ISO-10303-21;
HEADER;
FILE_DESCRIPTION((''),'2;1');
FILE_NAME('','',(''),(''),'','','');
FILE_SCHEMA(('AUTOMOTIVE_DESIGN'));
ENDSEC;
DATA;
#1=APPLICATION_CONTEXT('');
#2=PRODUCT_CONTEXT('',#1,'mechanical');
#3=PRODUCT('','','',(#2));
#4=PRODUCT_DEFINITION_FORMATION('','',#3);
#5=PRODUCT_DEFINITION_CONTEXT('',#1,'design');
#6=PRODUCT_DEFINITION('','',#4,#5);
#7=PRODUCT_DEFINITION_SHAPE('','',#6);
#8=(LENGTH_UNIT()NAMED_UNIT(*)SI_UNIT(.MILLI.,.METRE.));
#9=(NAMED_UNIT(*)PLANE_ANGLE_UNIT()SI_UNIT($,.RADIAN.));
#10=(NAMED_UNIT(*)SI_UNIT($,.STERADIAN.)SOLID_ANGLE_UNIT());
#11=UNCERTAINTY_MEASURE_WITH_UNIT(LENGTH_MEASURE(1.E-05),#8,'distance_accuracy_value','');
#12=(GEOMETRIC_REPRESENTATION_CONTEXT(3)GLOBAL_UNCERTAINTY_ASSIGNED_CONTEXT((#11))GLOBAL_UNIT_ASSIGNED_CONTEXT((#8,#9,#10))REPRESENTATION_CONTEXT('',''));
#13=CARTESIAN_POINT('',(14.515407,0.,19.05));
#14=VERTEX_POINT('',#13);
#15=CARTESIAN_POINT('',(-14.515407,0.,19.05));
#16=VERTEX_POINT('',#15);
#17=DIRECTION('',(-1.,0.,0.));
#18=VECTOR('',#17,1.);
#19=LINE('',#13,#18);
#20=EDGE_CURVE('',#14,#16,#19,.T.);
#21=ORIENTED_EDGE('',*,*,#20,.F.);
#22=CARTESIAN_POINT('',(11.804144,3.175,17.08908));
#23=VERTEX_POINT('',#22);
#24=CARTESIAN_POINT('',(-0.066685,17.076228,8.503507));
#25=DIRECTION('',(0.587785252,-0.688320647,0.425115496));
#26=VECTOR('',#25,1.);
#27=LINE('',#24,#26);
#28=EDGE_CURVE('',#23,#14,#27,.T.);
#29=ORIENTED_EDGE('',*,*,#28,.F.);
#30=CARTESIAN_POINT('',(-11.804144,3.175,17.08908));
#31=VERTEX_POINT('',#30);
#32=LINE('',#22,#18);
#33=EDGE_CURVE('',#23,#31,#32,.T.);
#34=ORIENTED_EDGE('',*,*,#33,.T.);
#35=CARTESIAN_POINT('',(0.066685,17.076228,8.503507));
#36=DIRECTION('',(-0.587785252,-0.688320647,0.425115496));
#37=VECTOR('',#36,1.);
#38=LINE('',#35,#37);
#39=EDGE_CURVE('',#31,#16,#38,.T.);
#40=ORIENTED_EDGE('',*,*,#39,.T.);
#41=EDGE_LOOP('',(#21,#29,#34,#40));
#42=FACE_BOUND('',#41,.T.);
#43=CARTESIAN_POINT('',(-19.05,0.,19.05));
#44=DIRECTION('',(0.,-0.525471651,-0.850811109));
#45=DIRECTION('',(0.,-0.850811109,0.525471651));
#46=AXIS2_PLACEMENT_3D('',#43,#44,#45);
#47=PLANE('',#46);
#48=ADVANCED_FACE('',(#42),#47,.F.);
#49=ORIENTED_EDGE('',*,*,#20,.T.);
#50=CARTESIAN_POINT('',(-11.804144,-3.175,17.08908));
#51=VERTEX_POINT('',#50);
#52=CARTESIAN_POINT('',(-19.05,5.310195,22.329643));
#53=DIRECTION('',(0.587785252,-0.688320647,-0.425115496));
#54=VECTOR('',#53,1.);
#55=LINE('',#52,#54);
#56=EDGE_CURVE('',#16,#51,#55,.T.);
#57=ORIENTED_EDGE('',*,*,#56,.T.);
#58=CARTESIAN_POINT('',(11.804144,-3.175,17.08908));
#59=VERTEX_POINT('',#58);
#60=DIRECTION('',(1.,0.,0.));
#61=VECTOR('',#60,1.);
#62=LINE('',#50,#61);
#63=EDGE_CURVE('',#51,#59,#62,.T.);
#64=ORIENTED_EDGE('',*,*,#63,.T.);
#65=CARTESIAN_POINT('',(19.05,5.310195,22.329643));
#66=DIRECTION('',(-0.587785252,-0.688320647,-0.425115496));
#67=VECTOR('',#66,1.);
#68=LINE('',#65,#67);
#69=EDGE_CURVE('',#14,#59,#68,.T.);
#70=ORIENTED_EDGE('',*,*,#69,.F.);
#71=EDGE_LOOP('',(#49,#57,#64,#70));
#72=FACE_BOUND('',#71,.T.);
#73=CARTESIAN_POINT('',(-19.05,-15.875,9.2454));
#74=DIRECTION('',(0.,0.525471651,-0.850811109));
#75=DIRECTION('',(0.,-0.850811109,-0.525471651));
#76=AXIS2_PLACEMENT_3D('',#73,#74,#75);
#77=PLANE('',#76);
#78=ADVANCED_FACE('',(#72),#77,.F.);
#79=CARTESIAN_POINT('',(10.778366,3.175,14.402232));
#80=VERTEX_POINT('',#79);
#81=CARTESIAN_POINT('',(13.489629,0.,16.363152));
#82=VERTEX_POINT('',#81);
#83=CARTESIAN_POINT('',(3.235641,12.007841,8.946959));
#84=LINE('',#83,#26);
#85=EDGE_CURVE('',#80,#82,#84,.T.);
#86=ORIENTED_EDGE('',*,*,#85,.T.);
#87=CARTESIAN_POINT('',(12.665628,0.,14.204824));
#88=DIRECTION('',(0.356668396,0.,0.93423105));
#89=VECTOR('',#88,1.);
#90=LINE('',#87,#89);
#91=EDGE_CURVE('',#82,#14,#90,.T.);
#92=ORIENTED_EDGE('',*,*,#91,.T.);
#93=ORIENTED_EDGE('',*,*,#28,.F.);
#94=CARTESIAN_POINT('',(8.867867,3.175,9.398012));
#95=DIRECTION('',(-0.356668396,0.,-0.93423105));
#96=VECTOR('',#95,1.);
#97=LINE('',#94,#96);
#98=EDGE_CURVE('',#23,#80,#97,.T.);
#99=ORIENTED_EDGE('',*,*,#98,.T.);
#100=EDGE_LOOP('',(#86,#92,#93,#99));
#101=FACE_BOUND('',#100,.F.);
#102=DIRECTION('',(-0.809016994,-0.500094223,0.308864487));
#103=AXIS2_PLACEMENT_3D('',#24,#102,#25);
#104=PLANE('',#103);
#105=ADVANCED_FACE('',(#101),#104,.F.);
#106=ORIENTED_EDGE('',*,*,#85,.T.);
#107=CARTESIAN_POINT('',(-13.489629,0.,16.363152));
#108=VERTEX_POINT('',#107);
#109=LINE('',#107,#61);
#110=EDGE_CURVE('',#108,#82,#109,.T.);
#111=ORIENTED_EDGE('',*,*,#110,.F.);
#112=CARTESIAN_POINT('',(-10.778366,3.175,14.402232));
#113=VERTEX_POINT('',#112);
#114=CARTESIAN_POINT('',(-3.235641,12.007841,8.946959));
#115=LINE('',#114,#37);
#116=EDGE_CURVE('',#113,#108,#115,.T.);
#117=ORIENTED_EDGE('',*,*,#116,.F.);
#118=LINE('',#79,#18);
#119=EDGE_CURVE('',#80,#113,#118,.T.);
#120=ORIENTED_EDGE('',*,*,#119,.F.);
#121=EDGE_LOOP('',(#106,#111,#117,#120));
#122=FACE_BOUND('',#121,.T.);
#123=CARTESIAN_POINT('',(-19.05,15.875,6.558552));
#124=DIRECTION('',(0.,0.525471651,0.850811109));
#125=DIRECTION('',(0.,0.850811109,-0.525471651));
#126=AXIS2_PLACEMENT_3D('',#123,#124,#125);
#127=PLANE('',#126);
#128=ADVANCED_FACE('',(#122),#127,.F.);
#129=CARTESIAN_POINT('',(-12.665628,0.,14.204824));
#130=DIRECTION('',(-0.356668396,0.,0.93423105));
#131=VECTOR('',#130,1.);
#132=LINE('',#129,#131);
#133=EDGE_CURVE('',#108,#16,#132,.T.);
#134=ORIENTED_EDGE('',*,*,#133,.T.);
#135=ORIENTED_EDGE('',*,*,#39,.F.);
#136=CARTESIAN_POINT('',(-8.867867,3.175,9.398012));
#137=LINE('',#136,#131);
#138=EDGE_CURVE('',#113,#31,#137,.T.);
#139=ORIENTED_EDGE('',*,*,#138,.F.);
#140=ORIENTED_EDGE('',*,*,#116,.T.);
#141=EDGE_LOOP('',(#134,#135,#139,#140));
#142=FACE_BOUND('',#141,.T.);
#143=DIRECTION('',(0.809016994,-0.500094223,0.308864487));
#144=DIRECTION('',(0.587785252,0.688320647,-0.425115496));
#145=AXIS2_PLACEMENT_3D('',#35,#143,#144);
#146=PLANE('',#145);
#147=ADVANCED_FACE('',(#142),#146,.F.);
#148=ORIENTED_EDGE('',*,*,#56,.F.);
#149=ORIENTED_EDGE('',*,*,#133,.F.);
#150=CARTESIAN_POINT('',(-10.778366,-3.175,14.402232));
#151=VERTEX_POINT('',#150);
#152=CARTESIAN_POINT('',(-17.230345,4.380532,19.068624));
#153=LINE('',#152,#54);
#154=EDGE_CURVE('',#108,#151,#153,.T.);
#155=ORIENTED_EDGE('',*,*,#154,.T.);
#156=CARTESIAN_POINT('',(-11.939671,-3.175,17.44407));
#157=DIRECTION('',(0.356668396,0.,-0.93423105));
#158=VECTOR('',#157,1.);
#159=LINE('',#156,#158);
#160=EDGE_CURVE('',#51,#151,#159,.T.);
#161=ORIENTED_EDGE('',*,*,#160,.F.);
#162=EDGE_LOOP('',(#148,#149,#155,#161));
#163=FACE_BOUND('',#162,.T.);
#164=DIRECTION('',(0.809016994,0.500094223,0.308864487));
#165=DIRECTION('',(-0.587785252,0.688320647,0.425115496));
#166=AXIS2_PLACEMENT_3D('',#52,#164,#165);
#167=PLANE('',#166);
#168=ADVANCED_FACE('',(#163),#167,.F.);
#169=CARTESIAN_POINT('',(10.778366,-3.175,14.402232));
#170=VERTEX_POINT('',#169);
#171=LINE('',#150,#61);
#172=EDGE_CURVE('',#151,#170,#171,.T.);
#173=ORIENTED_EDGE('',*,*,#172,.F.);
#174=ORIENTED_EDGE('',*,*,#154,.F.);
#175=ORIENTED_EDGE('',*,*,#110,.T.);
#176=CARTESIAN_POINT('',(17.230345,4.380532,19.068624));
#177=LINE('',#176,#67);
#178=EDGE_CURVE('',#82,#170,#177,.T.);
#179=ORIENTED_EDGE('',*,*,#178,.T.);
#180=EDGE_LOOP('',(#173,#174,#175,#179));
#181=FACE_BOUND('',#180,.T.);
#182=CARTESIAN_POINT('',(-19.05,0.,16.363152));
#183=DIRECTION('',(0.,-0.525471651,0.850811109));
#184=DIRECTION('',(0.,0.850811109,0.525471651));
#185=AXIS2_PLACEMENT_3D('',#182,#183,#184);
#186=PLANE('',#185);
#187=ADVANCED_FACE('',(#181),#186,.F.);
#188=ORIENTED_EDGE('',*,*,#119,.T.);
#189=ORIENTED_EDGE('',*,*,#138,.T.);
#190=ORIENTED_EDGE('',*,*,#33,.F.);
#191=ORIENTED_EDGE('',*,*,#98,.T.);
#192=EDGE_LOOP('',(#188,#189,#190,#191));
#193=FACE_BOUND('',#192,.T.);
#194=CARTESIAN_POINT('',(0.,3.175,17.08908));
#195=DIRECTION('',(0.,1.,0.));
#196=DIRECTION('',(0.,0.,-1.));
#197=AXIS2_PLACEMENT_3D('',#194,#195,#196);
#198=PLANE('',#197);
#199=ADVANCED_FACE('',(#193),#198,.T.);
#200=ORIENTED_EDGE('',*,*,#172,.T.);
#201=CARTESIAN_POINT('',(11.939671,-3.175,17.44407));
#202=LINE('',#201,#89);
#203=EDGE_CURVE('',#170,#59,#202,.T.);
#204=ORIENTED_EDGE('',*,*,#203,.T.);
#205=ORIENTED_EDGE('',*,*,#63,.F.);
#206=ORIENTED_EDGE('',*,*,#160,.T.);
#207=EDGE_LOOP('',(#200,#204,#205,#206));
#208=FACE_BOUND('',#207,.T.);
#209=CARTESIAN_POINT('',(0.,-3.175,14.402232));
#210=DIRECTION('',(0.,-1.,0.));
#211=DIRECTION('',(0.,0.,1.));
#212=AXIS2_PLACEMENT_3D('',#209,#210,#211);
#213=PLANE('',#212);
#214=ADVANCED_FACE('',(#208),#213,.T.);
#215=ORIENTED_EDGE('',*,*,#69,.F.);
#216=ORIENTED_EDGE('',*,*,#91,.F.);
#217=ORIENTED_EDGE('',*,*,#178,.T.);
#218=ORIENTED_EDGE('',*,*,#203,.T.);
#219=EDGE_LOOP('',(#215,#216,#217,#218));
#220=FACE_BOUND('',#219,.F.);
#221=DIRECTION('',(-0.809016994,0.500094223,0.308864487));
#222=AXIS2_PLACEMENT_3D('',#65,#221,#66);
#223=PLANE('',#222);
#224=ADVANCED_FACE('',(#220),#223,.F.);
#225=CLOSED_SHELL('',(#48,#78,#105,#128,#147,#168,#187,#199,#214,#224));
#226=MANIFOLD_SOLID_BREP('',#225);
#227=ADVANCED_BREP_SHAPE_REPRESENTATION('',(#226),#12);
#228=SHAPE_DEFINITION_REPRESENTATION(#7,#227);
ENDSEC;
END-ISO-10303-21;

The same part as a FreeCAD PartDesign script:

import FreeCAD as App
import Part
import Sketcher

V = App.Vector
Q = App.Units.Quantity

doc = App.newDocument("Part")
body = doc.addObject("PartDesign::Body", "Body")

sketch1 = body.newObject("Sketcher::SketchObject", "Sketch")
sketch1.AttachmentSupport = (doc.getObject("YZ_Plane"), [""])
sketch1.MapMode = "FlatFace"
sketch1.addGeometry(Part.LineSegment(V(-16, 19, 0), V(-16, -19, 0)), False)
sketch1.addGeometry(Part.LineSegment(V(-16, -19, 0), V(16, -19, 0)), False)
sketch1.addGeometry(Part.LineSegment(V(16, -19, 0), V(16, 19, 0)), False)
sketch1.addGeometry(Part.LineSegment(V(16, 19, 0), V(-16, 19, 0)), False)
sketch1.addConstraint(Sketcher.Constraint("Coincident", 0, 2, 1, 1))
sketch1.addConstraint(Sketcher.Constraint("Coincident", 1, 2, 2, 1))
sketch1.addConstraint(Sketcher.Constraint("Coincident", 2, 2, 3, 1))
sketch1.addConstraint(Sketcher.Constraint("Coincident", 3, 2, 0, 1))
sketch1.addConstraint(Sketcher.Constraint("Vertical", 0))
sketch1.addConstraint(Sketcher.Constraint("Horizontal", 1))
sketch1.addConstraint(Sketcher.Constraint("Vertical", 2))
sketch1.addConstraint(Sketcher.Constraint("Horizontal", 3))
sketch1.addConstraint(Sketcher.Constraint("Symmetric", 0, 2, 2, 2, -1, 1))
sketch1.addConstraint(Sketcher.Constraint("DistanceY", 0, 2, 0, 1, Q("1.5 in")))
sketch1.addConstraint(Sketcher.Constraint("DistanceX", 1, 1, 1, 2, Q("1.25 in")))
pad1 = body.newObject("PartDesign::Pad", "Pad")
pad1.Profile = sketch1
pad1.Length = Q("0.75 in")

sketch2 = body.newObject("Sketcher::SketchObject", "Sketch001")
sketch2.AttachmentSupport = (doc.getObject("YZ_Plane"), [""])
sketch2.MapMode = "FlatFace"
sketch2.AttachmentOffset = App.Placement(V(0, 0, 0.75 * 25.4), App.Rotation())
sketch2.addGeometry(Part.LineSegment(V(16, 19, 0), V(0, 19, 0)), False)
sketch2.addGeometry(Part.LineSegment(V(0, 19, 0), V(16, 9, 0)), False)
sketch2.addGeometry(Part.LineSegment(V(16, 9, 0), V(16, 19, 0)), False)
sketch2.addGeometry(Part.LineSegment(V(-16, 9, 0), V(0, 19, 0)), False)
sketch2.addGeometry(Part.LineSegment(V(0, 19, 0), V(-16, 19, 0)), False)
sketch2.addGeometry(Part.LineSegment(V(-16, 19, 0), V(-16, 9, 0)), False)
sketch2.addGeometry(Part.LineSegment(V(-16, -19, 0), V(16, -19, 0)), False)
sketch2.addGeometry(Part.LineSegment(V(16, -19, 0), V(16, 7, 0)), False)
sketch2.addGeometry(Part.LineSegment(V(16, 7, 0), V(0, 16, 0)), False)
sketch2.addGeometry(Part.LineSegment(V(0, 16, 0), V(-16, 7, 0)), False)
sketch2.addGeometry(Part.LineSegment(V(-16, 7, 0), V(-16, -19, 0)), False)
sketch2.addConstraint(Sketcher.Constraint("Coincident", 0, 2, 1, 1))
sketch2.addConstraint(Sketcher.Constraint("Coincident", 1, 2, 2, 1))
sketch2.addConstraint(Sketcher.Constraint("Coincident", 2, 2, 0, 1))
sketch2.addConstraint(Sketcher.Constraint("Coincident", 3, 2, 4, 1))
sketch2.addConstraint(Sketcher.Constraint("Coincident", 4, 2, 5, 1))
sketch2.addConstraint(Sketcher.Constraint("Coincident", 5, 2, 3, 1))
sketch2.addConstraint(Sketcher.Constraint("Coincident", 6, 2, 7, 1))
sketch2.addConstraint(Sketcher.Constraint("Coincident", 7, 2, 8, 1))
sketch2.addConstraint(Sketcher.Constraint("Coincident", 8, 2, 9, 1))
sketch2.addConstraint(Sketcher.Constraint("Coincident", 9, 2, 10, 1))
sketch2.addConstraint(Sketcher.Constraint("Coincident", 10, 2, 6, 1))
sketch2.addConstraint(Sketcher.Constraint("Horizontal", 0))
sketch2.addConstraint(Sketcher.Constraint("Vertical", 2))
sketch2.addConstraint(Sketcher.Constraint("Horizontal", 4))
sketch2.addConstraint(Sketcher.Constraint("Vertical", 5))
sketch2.addConstraint(Sketcher.Constraint("Horizontal", 6))
sketch2.addConstraint(Sketcher.Constraint("Vertical", 7))
sketch2.addConstraint(Sketcher.Constraint("Vertical", 10))
sketch2.addConstraint(Sketcher.Constraint("Coincident", 3, 2, 0, 2))
sketch2.addConstraint(Sketcher.Constraint("Symmetric", 4, 2, 6, 2, -1, 1))
sketch2.addConstraint(Sketcher.Constraint("Symmetric", 1, 2, 5, 2, -2))
sketch2.addConstraint(Sketcher.Constraint("Symmetric", 7, 2, 9, 2, -2))
sketch2.addConstraint(Sketcher.Constraint("PointOnObject", 0, 2, -2))
sketch2.addConstraint(Sketcher.Constraint("PointOnObject", 8, 2, -2))
sketch2.addConstraint(Sketcher.Constraint("Parallel", 1, 8))
sketch2.addConstraint(Sketcher.Constraint("DistanceX", 6, 1, 6, 2, Q("1.25 in")))
sketch2.addConstraint(Sketcher.Constraint("Angle", 1, Q("-31.7 deg")))
sketch2.addConstraint(Sketcher.Constraint("DistanceY", 6, 2, 2, 2, Q("1.5 in")))
sketch2.addConstraint(Sketcher.Constraint("DistanceY", 7, 1, 7, 2, Q("25.608552 mm")))
pocket1 = body.newObject("PartDesign::Pocket", "Pocket")
pocket1.Profile = sketch2
pocket1.Type = "ThroughAll"

sketch3 = body.newObject("Sketcher::SketchObject", "Sketch002")
sketch3.Placement = App.Placement(V(0, -8.516819, 13.789905), App.Rotation(V(1, 0, 0), V(0, 0.850811109, 0.525471651), V(0, -0.525471651, 0.850811109), "ZXY"))
sketch3.addGeometry(Part.LineSegment(V(19, -10, 0), V(19, 16, 0)), False)
sketch3.addGeometry(Part.LineSegment(V(19, 16, 0), V(0, -10, 0)), False)
sketch3.addGeometry(Part.LineSegment(V(0, -10, 0), V(19, -10, 0)), False)
sketch3.addConstraint(Sketcher.Constraint("Coincident", 0, 2, 1, 1))
sketch3.addConstraint(Sketcher.Constraint("Coincident", 1, 2, 2, 1))
sketch3.addConstraint(Sketcher.Constraint("Coincident", 2, 2, 0, 1))
sketch3.addConstraint(Sketcher.Constraint("Vertical", 0))
sketch3.addConstraint(Sketcher.Constraint("Horizontal", 2))
sketch3.addConstraint(Sketcher.Constraint("Angle", 1, Q("-126 deg")))
sketch3.addConstraint(Sketcher.Constraint("DistanceX", -1, 1, 0, 2, Q("0.75 in")))
sketch3.addConstraint(Sketcher.Constraint("DistanceY", 0, 1, 0, 2, Q("1.0359 in")))
sketch3.addConstraint(Sketcher.Constraint("DistanceY", -1, 1, 0, 2, Q("16.251567 mm")))
pocket2 = body.newObject("PartDesign::Pocket", "Pocket001")
pocket2.Profile = sketch3
pocket2.Type = "ThroughAll"

sketch4 = body.newObject("Sketcher::SketchObject", "Sketch003")
sketch4.Placement = App.Placement(V(0, 8.516819, 13.789905), App.Rotation(V(1, 0, 0), V(0, 0.850811109, -0.525471651), V(0, 0.525471651, 0.850811109), "ZXY"))
sketch4.addGeometry(Part.LineSegment(V(125, -10, 0), V(125, 10, 0)), False)
sketch4.addGeometry(Part.LineSegment(V(125, 10, 0), V(111, 10, 0)), False)
sketch4.addGeometry(Part.LineSegment(V(111, 10, 0), V(125, -10, 0)), False)
sketch4.addConstraint(Sketcher.Constraint("Coincident", 0, 2, 1, 1))
sketch4.addConstraint(Sketcher.Constraint("Coincident", 1, 2, 2, 1))
sketch4.addConstraint(Sketcher.Constraint("Coincident", 2, 2, 0, 1))
sketch4.addConstraint(Sketcher.Constraint("Vertical", 0))
sketch4.addConstraint(Sketcher.Constraint("Horizontal", 1))
sketch4.addConstraint(Sketcher.Constraint("Angle", 2, Q("-54 deg")))
sketch4.addConstraint(Sketcher.Constraint("DistanceX", 1, 2, 1, 1, Q("14.582092 mm")))
sketch4.addConstraint(Sketcher.Constraint("DistanceX", -1, 1, 0, 2, Q("125.314515 mm")))
sketch4.addConstraint(Sketcher.Constraint("DistanceY", -1, 1, 0, 2, Q("10.060293 mm")))
pocket3 = body.newObject("PartDesign::Pocket", "Pocket002")
pocket3.Profile = sketch4
pocket3.Type = "ThroughAll"

sketch5 = body.newObject("Sketcher::SketchObject", "Sketch004")
sketch5.Placement = App.Placement(V(0, 8.516819, 13.789905), App.Rotation(V(1, 0, 0), V(0, 0.850811109, -0.525471651), V(0, 0.525471651, 0.850811109), "ZXY"))
sketch5.addGeometry(Part.LineSegment(V(0, 10, 0), V(19, -16, 0)), False)
sketch5.addGeometry(Part.LineSegment(V(19, -16, 0), V(19, 10, 0)), False)
sketch5.addGeometry(Part.LineSegment(V(19, 10, 0), V(0, 10, 0)), False)
sketch5.addConstraint(Sketcher.Constraint("Coincident", 0, 2, 1, 1))
sketch5.addConstraint(Sketcher.Constraint("Coincident", 1, 2, 2, 1))
sketch5.addConstraint(Sketcher.Constraint("Coincident", 2, 2, 0, 1))
sketch5.addConstraint(Sketcher.Constraint("Vertical", 1))
sketch5.addConstraint(Sketcher.Constraint("Horizontal", 2))
sketch5.addConstraint(Sketcher.Constraint("Angle", 0, Q("-54 deg")))
sketch5.addConstraint(Sketcher.Constraint("DistanceX", -1, 1, 0, 2, Q("0.75 in")))
sketch5.addConstraint(Sketcher.Constraint("DistanceY", 1, 1, 1, 2, Q("1.0359 in")))
sketch5.addConstraint(Sketcher.Constraint("DistanceY", 0, 2, -1, 1, Q("16.251567 mm")))
pocket4 = body.newObject("PartDesign::Pocket", "Pocket003")
pocket4.Profile = sketch5
pocket4.Length = Q("1 in")
body2 = doc.addObject("PartDesign::Body", "Body001")
doc.recompute()

body2.BaseFeature = body
doc.recompute()

mirroring = doc.addObject("Part::Mirroring", "Mirroring")
mirroring.Source = body
mirroring.Base = V(0, 0, 0)
mirroring.Normal = V(1, 0, 0)
body3 = doc.addObject("PartDesign::Body", "Body002")
body3.BaseFeature = mirroring
boolean = body2.newObject("PartDesign::Boolean", "Boolean")
boolean.Type = "Fuse"
boolean.addObjects([body3])
doc.recompute()

sketch6 = body2.newObject("Sketcher::SketchObject", "Sketch005")
sketch6.AttachmentSupport = (doc.getObject("YZ_Plane001"), [""])
sketch6.MapMode = "FlatFace"
sketch6.addGeometry(Part.LineSegment(V(-15.9, 9.2, 0), V(-15.9, 6.6, 0)), False)
sketch6.addGeometry(Part.LineSegment(V(-15.9, 6.6, 0), V(-3.2, 14.4, 0)), False)
sketch6.addGeometry(Part.LineSegment(V(-3.2, 14.4, 0), V(-3.2, 17.1, 0)), False)
sketch6.addGeometry(Part.LineSegment(V(-3.2, 17.1, 0), V(-15.9, 9.2, 0)), False)
sketch6.addGeometry(Part.LineSegment(V(15.9, 9.2, 0), V(3.2, 17.1, 0)), False)
sketch6.addGeometry(Part.LineSegment(V(3.2, 17.1, 0), V(3.2, 14.4, 0)), False)
sketch6.addGeometry(Part.LineSegment(V(3.2, 14.4, 0), V(15.9, 6.6, 0)), False)
sketch6.addGeometry(Part.LineSegment(V(15.9, 6.6, 0), V(15.9, 9.2, 0)), False)
sketch6.addConstraint(Sketcher.Constraint("Coincident", 0, 2, 1, 1))
sketch6.addConstraint(Sketcher.Constraint("Coincident", 1, 2, 2, 1))
sketch6.addConstraint(Sketcher.Constraint("Coincident", 2, 2, 3, 1))
sketch6.addConstraint(Sketcher.Constraint("Coincident", 3, 2, 0, 1))
sketch6.addConstraint(Sketcher.Constraint("Coincident", 4, 2, 5, 1))
sketch6.addConstraint(Sketcher.Constraint("Coincident", 5, 2, 6, 1))
sketch6.addConstraint(Sketcher.Constraint("Coincident", 6, 2, 7, 1))
sketch6.addConstraint(Sketcher.Constraint("Coincident", 7, 2, 4, 1))
sketch6.addConstraint(Sketcher.Constraint("Vertical", 0))
sketch6.addConstraint(Sketcher.Constraint("Vertical", 2))
sketch6.addConstraint(Sketcher.Constraint("Vertical", 5))
sketch6.addConstraint(Sketcher.Constraint("Vertical", 7))
sketch6.addConstraint(Sketcher.Constraint("Symmetric", 2, 2, 4, 2, -2))
sketch6.addConstraint(Sketcher.Constraint("Symmetric", 0, 2, 6, 2, -2))
sketch6.addConstraint(Sketcher.Constraint("Parallel", 1, 3))
sketch6.addConstraint(Sketcher.Constraint("Parallel", 4, 6))
sketch6.addConstraint(Sketcher.Constraint("Horizontal", 1, 2, 5, 2))
sketch6.addConstraint(Sketcher.Constraint("Angle", 1, Q("31.7 deg")))
sketch6.addConstraint(Sketcher.Constraint("DistanceX", 0, 2, 1, 2, Q("0.5 in")))
sketch6.addConstraint(Sketcher.Constraint("DistanceX", 2, 2, 4, 2, Q("0.25 in")))
sketch6.addConstraint(Sketcher.Constraint("DistanceY", -1, 1, 3, 2, Q("9.2454 mm")))
sketch6.addConstraint(Sketcher.Constraint("DistanceY", 0, 2, 0, 1, Q("2.686848 mm")))
pocket5 = body2.newObject("PartDesign::Pocket", "Pocket004")
pocket5.Profile = sketch6
pocket5.Type = "ThroughAll"
pocket5.Midplane = True
mirroring.Visibility = False

doc.recompute()
